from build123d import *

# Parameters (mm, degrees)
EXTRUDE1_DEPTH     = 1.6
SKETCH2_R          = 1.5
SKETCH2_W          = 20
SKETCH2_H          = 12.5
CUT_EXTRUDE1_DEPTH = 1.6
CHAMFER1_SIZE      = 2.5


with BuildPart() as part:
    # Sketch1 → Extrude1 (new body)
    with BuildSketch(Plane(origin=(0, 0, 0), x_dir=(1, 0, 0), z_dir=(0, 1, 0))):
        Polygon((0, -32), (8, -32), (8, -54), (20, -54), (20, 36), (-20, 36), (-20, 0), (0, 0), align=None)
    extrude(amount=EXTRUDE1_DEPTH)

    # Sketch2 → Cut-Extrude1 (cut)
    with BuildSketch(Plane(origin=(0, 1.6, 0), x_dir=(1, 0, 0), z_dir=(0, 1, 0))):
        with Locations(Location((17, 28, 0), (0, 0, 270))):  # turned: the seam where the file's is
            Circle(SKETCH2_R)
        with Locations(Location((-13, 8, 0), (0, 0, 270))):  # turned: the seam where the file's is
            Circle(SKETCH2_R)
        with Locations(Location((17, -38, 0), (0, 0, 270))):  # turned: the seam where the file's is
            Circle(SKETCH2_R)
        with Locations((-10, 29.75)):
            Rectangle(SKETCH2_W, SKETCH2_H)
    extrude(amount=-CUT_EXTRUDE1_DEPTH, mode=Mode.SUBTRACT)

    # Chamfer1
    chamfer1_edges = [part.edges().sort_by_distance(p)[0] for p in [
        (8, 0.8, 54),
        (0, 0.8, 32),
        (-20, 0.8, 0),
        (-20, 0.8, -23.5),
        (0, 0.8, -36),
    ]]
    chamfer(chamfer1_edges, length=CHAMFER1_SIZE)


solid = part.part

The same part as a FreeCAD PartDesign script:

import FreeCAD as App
import Part
import Sketcher

V = App.Vector


def edges_at(feature, points):
    """Names of the edges that pass closest to the given points."""
    edges = feature.Shape.Edges
    near = lambda p: min(range(len(edges)), key=lambda i: edges[i].distToShape(Part.Vertex(*p))[0])
    return sorted({f"Edge{near(p) + 1}" for p in points})

doc = App.newDocument("Part")
params = doc.addObject("Spreadsheet::Sheet", "Params")
for row, (alias, value) in enumerate([
    ("sketch1_width", "8 mm"),
    ("sketch1_width2", "12 mm"),
    ("sketch1_width3", "40 mm"),
    ("sketch1_height", "22 mm"),
    ("sketch1_height2", "90 mm"),
    ("pad1_length", "1.6 mm"),
    ("sketch2_diameter", "3 mm"),
    ("sketch2_width", "20 mm"),
    ("sketch2_height", "12.5 mm"),
    ("pocket1_length", "1.6 mm"),
    ("chamfer_size", "2.5 mm"),
], start=1):
    params.set(f"A{row}", alias)
    params.set(f"B{row}", "=" + value)
    params.setAlias(f"B{row}", alias)

body = doc.addObject("PartDesign::Body", "Body")

# Sketch on XZ plane
sketch1 = body.newObject("Sketcher::SketchObject", "Sketch")
sketch1.AttachmentSupport = (doc.getObject("XZ_Plane"), [""])
sketch1.MapMode = "FlatFace"
sketch1.addGeometry([
    Part.LineSegment(V(0, 32, 0), V(8, 32, 0)),  # 0
    Part.LineSegment(V(8, 32, 0), V(8, 54, 0)),  # 1
    Part.LineSegment(V(8, 54, 0), V(20, 54, 0)),  # 2
    Part.LineSegment(V(20, 54, 0), V(20, -36, 0)),  # 3
    Part.LineSegment(V(20, -36, 0), V(-20, -36, 0)),  # 4
    Part.LineSegment(V(-20, -36, 0), V(-20, 0, 0)),  # 5
    Part.LineSegment(V(-20, 0, 0), V(0, 0, 0)),  # 6
    Part.LineSegment(V(0, 0, 0), V(0, 32, 0)),  # 7
], False)
sketch1.addConstraint([
    Sketcher.Constraint("Coincident", 0, 2, 1, 1),
    Sketcher.Constraint("Coincident", 1, 2, 2, 1),
    Sketcher.Constraint("Coincident", 2, 2, 3, 1),
    Sketcher.Constraint("Coincident", 3, 2, 4, 1),
    Sketcher.Constraint("Coincident", 4, 2, 5, 1),
    Sketcher.Constraint("Coincident", 5, 2, 6, 1),
    Sketcher.Constraint("Coincident", 6, 2, 7, 1),
    Sketcher.Constraint("Coincident", 7, 2, 0, 1),
    Sketcher.Constraint("Horizontal", 0),
    Sketcher.Constraint("Vertical", 1),
    Sketcher.Constraint("Horizontal", 2),
    Sketcher.Constraint("Vertical", 3),
    Sketcher.Constraint("Horizontal", 4),
    Sketcher.Constraint("Vertical", 5),
    Sketcher.Constraint("Horizontal", 6),
    Sketcher.Constraint("Vertical", 7),
    Sketcher.Constraint("Coincident", 6, 2, -1, 1),
    Sketcher.Constraint("DistanceX", 0, 1, 0, 2, 8.0),
    Sketcher.Constraint("DistanceX", 2, 1, 2, 2, 12.0),
    Sketcher.Constraint("DistanceX", 4, 2, 4, 1, 40.0),
    Sketcher.Constraint("DistanceY", 1, 1, 1, 2, 22.0),
    Sketcher.Constraint("DistanceY", 3, 2, 3, 1, 90.0),
    Sketcher.Constraint("DistanceY", 5, 1, 5, 2, 36.0),
])
sketch1.setExpression("Constraints[17]", "Params.sketch1_width")
sketch1.setExpression("Constraints[18]", "Params.sketch1_width2")
sketch1.setExpression("Constraints[19]", "Params.sketch1_width3")
sketch1.setExpression("Constraints[20]", "Params.sketch1_height")
sketch1.setExpression("Constraints[21]", "Params.sketch1_height2")
pad1 = body.newObject("PartDesign::Pad", "Pad")
pad1.Profile = sketch1
pad1.setExpression("Length", "Params.pad1_length")
pad1.Reversed = True

# Sketch on XZ plane
sketch2 = body.newObject("Sketcher::SketchObject", "Sketch001")
sketch2.AttachmentSupport = (doc.getObject("XZ_Plane"), [""])
sketch2.MapMode = "FlatFace"
sketch2.AttachmentOffset = App.Placement(V(0, 0, -1.6), App.Rotation())
sketch2.addGeometry([
    Part.Circle(V(17, -28, 0), V(0, 0, 1), 1.5),  # 0
    Part.Circle(V(-13, -8, 0), V(0, 0, 1), 1.5),  # 1
    Part.Circle(V(17, 38, 0), V(0, 0, 1), 1.5),  # 2
    Part.LineSegment(V(-20, -36, 0), V(-20, -23.5, 0)),  # 3
    Part.LineSegment(V(-20, -23.5, 0), V(0, -23.5, 0)),  # 4
    Part.LineSegment(V(0, -23.5, 0), V(0, -36, 0)),  # 5
    Part.LineSegment(V(0, -36, 0), V(-20, -36, 0)),  # 6
], False)
sketch2.addConstraint([
    Sketcher.Constraint("Coincident", 3, 2, 4, 1),
    Sketcher.Constraint("Coincident", 4, 2, 5, 1),
    Sketcher.Constraint("Coincident", 5, 2, 6, 1),
    Sketcher.Constraint("Coincident", 6, 2, 3, 1),
    Sketcher.Constraint("Vertical", 3),
    Sketcher.Constraint("Horizontal", 4),
    Sketcher.Constraint("Vertical", 5),
    Sketcher.Constraint("Horizontal", 6),
    Sketcher.Constraint("Equal", 0, 1),
    Sketcher.Constraint("Equal", 1, 2),
    Sketcher.Constraint("PointOnObject", 4, 2, -2),
    Sketcher.Constraint("Vertical", 0, 3, 2, 3),
    Sketcher.Constraint("Diameter", 0, 3.0),
    Sketcher.Constraint("DistanceX", 4, 1, 4, 2, 20.0),
    Sketcher.Constraint("DistanceY", 3, 1, 3, 2, 12.5),
    Sketcher.Constraint("DistanceX", -1, 1, 0, 3, 17.0),
    Sketcher.Constraint("DistanceY", 0, 3, -1, 1, 28.0),
    Sketcher.Constraint("DistanceX", 1, 3, -1, 1, 13.0),
    Sketcher.Constraint("DistanceY", 1, 3, -1, 1, 8.0),
    Sketcher.Constraint("DistanceY", -1, 1, 2, 3, 38.0),
    Sketcher.Constraint("DistanceY", 5, 2, -1, 1, 36.0),
])
sketch2.setExpression("Constraints[12]", "Params.sketch2_diameter")
sketch2.setExpression("Constraints[13]", "Params.sketch2_width")
sketch2.setExpression("Constraints[14]", "Params.sketch2_height")
pocket1 = body.newObject("PartDesign::Pocket", "Pocket")
pocket1.Profile = sketch2
pocket1.setExpression("Length", "Params.pocket1_length")
pocket1.Reversed = True
doc.recompute()

chamfer = body.newObject("PartDesign::Chamfer", "Chamfer")
chamfer.Base = (pocket1, edges_at(pocket1, [
    (8, 0.8, 54),
    (0, 0.8, 32),
    (-20, 0.8, 0),
    (-20, 0.8, -23.5),
    (0, 0.8, -36),
]))
chamfer.setExpression("Size", "Params.chamfer_size")

doc.recompute()
